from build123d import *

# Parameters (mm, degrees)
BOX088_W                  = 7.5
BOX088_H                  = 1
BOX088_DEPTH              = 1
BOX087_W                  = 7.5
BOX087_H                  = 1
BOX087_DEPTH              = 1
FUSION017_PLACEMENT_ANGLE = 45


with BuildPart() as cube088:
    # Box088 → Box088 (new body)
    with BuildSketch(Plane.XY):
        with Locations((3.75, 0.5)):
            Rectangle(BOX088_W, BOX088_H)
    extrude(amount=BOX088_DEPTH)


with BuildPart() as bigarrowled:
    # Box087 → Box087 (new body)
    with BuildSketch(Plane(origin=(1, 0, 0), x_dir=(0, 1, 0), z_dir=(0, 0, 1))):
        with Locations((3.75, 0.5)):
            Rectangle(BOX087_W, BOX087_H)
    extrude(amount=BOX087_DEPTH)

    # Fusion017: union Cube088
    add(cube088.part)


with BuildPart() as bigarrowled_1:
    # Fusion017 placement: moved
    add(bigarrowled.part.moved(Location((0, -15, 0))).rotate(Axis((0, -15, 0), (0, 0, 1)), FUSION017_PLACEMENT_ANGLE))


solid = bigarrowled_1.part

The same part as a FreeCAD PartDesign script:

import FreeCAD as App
import Part
import Sketcher

V = App.Vector
Q = App.Units.Quantity

doc = App.newDocument("Part")
params = doc.addObject("Spreadsheet::Sheet", "Params")
for row, (alias, value) in enumerate([
    ("sketch1_height", "1 mm"),
    ("sketch1_width", "7.5 mm"),
    ("pad1_length", "1 mm"),
    ("sketch2_width", "1 mm"),
    ("sketch2_height", "7.5 mm"),
    ("pad2_length", "1 mm"),
], start=1):
    params.set(f"A{row}", alias)
    params.set(f"B{row}", "=" + value)
    params.setAlias(f"B{row}", alias)

body = doc.addObject("PartDesign::Body", "Body")

sketch1 = body.newObject("Sketcher::SketchObject", "Sketch")
sketch1.AttachmentSupport = (doc.getObject("XY_Plane"), [""])
sketch1.MapMode = "FlatFace"
sketch1.addGeometry([
    Part.LineSegment(V(0, 1, 0), V(0, 0, 0)),
    Part.LineSegment(V(0, 0, 0), V(7.5, 0, 0)),
    Part.LineSegment(V(7.5, 0, 0), V(7.5, 1, 0)),
    Part.LineSegment(V(7.5, 1, 0), V(0, 1, 0)),
], False)
sketch1.addConstraint([
    Sketcher.Constraint("Coincident", 0, 2, 1, 1),
    Sketcher.Constraint("Coincident", 1, 2, 2, 1),
    Sketcher.Constraint("Coincident", 2, 2, 3, 1),
    Sketcher.Constraint("Coincident", 3, 2, 0, 1),
    Sketcher.Constraint("Vertical", 0),
    Sketcher.Constraint("Horizontal", 1),
    Sketcher.Constraint("Vertical", 2),
    Sketcher.Constraint("Horizontal", 3),
    Sketcher.Constraint("Coincident", 0, 2, -1, 1),
    Sketcher.Constraint("DistanceY", 0, 2, 0, 1, Q("1 mm")),
    Sketcher.Constraint("DistanceX", 1, 1, 1, 2, Q("7.5 mm")),
])
sketch1.setExpression("Constraints[9]", "Params.sketch1_height")
sketch1.setExpression("Constraints[10]", "Params.sketch1_width")
pad1 = body.newObject("PartDesign::Pad", "Pad")
pad1.Profile = sketch1
pad1.setExpression("Length", "Params.pad1_length")
body2 = doc.addObject("PartDesign::Body", "Body001")

sketch2 = body2.newObject("Sketcher::SketchObject", "Sketch001")
sketch2.AttachmentSupport = (doc.getObject("XY_Plane001"), [""])
sketch2.MapMode = "FlatFace"
sketch2.addGeometry([
    Part.LineSegment(V(0, 0, 0), V(1, 0, 0)),
    Part.LineSegment(V(1, 0, 0), V(1, 7.5, 0)),
    Part.LineSegment(V(1, 7.5, 0), V(0, 7.5, 0)),
    Part.LineSegment(V(0, 7.5, 0), V(0, 0, 0)),
], False)
sketch2.addConstraint([
    Sketcher.Constraint("Coincident", 0, 2, 1, 1),
    Sketcher.Constraint("Coincident", 1, 2, 2, 1),
    Sketcher.Constraint("Coincident", 2, 2, 3, 1),
    Sketcher.Constraint("Coincident", 3, 2, 0, 1),
    Sketcher.Constraint("Horizontal", 0),
    Sketcher.Constraint("Vertical", 1),
    Sketcher.Constraint("Horizontal", 2),
    Sketcher.Constraint("Vertical", 3),
    Sketcher.Constraint("Coincident", 3, 2, -1, 1),
    Sketcher.Constraint("DistanceX", 0, 1, 0, 2, Q("1 mm")),
    Sketcher.Constraint("DistanceY", 1, 1, 1, 2, Q("7.5 mm")),
])
sketch2.setExpression("Constraints[9]", "Params.sketch2_width")
sketch2.setExpression("Constraints[10]", "Params.sketch2_height")
pad2 = body2.newObject("PartDesign::Pad", "Pad001")
pad2.Profile = sketch2
pad2.setExpression("Length", "Params.pad2_length")
doc.recompute()

boolean = body2.newObject("PartDesign::Boolean", "Boolean")
boolean.Type = "Fuse"
boolean.addObjects([body])
body3 = doc.addObject("PartDesign::Body", "Body002")
doc.recompute()

body2.Placement = App.Placement(V(0, -15, 0), App.Rotation(V(0, 0, 1), 45))
boolean2 = body3.newObject("PartDesign::Boolean", "Boolean001")
boolean2.Type = "Fuse"
boolean2.addObjects([body2])

doc.recompute()
